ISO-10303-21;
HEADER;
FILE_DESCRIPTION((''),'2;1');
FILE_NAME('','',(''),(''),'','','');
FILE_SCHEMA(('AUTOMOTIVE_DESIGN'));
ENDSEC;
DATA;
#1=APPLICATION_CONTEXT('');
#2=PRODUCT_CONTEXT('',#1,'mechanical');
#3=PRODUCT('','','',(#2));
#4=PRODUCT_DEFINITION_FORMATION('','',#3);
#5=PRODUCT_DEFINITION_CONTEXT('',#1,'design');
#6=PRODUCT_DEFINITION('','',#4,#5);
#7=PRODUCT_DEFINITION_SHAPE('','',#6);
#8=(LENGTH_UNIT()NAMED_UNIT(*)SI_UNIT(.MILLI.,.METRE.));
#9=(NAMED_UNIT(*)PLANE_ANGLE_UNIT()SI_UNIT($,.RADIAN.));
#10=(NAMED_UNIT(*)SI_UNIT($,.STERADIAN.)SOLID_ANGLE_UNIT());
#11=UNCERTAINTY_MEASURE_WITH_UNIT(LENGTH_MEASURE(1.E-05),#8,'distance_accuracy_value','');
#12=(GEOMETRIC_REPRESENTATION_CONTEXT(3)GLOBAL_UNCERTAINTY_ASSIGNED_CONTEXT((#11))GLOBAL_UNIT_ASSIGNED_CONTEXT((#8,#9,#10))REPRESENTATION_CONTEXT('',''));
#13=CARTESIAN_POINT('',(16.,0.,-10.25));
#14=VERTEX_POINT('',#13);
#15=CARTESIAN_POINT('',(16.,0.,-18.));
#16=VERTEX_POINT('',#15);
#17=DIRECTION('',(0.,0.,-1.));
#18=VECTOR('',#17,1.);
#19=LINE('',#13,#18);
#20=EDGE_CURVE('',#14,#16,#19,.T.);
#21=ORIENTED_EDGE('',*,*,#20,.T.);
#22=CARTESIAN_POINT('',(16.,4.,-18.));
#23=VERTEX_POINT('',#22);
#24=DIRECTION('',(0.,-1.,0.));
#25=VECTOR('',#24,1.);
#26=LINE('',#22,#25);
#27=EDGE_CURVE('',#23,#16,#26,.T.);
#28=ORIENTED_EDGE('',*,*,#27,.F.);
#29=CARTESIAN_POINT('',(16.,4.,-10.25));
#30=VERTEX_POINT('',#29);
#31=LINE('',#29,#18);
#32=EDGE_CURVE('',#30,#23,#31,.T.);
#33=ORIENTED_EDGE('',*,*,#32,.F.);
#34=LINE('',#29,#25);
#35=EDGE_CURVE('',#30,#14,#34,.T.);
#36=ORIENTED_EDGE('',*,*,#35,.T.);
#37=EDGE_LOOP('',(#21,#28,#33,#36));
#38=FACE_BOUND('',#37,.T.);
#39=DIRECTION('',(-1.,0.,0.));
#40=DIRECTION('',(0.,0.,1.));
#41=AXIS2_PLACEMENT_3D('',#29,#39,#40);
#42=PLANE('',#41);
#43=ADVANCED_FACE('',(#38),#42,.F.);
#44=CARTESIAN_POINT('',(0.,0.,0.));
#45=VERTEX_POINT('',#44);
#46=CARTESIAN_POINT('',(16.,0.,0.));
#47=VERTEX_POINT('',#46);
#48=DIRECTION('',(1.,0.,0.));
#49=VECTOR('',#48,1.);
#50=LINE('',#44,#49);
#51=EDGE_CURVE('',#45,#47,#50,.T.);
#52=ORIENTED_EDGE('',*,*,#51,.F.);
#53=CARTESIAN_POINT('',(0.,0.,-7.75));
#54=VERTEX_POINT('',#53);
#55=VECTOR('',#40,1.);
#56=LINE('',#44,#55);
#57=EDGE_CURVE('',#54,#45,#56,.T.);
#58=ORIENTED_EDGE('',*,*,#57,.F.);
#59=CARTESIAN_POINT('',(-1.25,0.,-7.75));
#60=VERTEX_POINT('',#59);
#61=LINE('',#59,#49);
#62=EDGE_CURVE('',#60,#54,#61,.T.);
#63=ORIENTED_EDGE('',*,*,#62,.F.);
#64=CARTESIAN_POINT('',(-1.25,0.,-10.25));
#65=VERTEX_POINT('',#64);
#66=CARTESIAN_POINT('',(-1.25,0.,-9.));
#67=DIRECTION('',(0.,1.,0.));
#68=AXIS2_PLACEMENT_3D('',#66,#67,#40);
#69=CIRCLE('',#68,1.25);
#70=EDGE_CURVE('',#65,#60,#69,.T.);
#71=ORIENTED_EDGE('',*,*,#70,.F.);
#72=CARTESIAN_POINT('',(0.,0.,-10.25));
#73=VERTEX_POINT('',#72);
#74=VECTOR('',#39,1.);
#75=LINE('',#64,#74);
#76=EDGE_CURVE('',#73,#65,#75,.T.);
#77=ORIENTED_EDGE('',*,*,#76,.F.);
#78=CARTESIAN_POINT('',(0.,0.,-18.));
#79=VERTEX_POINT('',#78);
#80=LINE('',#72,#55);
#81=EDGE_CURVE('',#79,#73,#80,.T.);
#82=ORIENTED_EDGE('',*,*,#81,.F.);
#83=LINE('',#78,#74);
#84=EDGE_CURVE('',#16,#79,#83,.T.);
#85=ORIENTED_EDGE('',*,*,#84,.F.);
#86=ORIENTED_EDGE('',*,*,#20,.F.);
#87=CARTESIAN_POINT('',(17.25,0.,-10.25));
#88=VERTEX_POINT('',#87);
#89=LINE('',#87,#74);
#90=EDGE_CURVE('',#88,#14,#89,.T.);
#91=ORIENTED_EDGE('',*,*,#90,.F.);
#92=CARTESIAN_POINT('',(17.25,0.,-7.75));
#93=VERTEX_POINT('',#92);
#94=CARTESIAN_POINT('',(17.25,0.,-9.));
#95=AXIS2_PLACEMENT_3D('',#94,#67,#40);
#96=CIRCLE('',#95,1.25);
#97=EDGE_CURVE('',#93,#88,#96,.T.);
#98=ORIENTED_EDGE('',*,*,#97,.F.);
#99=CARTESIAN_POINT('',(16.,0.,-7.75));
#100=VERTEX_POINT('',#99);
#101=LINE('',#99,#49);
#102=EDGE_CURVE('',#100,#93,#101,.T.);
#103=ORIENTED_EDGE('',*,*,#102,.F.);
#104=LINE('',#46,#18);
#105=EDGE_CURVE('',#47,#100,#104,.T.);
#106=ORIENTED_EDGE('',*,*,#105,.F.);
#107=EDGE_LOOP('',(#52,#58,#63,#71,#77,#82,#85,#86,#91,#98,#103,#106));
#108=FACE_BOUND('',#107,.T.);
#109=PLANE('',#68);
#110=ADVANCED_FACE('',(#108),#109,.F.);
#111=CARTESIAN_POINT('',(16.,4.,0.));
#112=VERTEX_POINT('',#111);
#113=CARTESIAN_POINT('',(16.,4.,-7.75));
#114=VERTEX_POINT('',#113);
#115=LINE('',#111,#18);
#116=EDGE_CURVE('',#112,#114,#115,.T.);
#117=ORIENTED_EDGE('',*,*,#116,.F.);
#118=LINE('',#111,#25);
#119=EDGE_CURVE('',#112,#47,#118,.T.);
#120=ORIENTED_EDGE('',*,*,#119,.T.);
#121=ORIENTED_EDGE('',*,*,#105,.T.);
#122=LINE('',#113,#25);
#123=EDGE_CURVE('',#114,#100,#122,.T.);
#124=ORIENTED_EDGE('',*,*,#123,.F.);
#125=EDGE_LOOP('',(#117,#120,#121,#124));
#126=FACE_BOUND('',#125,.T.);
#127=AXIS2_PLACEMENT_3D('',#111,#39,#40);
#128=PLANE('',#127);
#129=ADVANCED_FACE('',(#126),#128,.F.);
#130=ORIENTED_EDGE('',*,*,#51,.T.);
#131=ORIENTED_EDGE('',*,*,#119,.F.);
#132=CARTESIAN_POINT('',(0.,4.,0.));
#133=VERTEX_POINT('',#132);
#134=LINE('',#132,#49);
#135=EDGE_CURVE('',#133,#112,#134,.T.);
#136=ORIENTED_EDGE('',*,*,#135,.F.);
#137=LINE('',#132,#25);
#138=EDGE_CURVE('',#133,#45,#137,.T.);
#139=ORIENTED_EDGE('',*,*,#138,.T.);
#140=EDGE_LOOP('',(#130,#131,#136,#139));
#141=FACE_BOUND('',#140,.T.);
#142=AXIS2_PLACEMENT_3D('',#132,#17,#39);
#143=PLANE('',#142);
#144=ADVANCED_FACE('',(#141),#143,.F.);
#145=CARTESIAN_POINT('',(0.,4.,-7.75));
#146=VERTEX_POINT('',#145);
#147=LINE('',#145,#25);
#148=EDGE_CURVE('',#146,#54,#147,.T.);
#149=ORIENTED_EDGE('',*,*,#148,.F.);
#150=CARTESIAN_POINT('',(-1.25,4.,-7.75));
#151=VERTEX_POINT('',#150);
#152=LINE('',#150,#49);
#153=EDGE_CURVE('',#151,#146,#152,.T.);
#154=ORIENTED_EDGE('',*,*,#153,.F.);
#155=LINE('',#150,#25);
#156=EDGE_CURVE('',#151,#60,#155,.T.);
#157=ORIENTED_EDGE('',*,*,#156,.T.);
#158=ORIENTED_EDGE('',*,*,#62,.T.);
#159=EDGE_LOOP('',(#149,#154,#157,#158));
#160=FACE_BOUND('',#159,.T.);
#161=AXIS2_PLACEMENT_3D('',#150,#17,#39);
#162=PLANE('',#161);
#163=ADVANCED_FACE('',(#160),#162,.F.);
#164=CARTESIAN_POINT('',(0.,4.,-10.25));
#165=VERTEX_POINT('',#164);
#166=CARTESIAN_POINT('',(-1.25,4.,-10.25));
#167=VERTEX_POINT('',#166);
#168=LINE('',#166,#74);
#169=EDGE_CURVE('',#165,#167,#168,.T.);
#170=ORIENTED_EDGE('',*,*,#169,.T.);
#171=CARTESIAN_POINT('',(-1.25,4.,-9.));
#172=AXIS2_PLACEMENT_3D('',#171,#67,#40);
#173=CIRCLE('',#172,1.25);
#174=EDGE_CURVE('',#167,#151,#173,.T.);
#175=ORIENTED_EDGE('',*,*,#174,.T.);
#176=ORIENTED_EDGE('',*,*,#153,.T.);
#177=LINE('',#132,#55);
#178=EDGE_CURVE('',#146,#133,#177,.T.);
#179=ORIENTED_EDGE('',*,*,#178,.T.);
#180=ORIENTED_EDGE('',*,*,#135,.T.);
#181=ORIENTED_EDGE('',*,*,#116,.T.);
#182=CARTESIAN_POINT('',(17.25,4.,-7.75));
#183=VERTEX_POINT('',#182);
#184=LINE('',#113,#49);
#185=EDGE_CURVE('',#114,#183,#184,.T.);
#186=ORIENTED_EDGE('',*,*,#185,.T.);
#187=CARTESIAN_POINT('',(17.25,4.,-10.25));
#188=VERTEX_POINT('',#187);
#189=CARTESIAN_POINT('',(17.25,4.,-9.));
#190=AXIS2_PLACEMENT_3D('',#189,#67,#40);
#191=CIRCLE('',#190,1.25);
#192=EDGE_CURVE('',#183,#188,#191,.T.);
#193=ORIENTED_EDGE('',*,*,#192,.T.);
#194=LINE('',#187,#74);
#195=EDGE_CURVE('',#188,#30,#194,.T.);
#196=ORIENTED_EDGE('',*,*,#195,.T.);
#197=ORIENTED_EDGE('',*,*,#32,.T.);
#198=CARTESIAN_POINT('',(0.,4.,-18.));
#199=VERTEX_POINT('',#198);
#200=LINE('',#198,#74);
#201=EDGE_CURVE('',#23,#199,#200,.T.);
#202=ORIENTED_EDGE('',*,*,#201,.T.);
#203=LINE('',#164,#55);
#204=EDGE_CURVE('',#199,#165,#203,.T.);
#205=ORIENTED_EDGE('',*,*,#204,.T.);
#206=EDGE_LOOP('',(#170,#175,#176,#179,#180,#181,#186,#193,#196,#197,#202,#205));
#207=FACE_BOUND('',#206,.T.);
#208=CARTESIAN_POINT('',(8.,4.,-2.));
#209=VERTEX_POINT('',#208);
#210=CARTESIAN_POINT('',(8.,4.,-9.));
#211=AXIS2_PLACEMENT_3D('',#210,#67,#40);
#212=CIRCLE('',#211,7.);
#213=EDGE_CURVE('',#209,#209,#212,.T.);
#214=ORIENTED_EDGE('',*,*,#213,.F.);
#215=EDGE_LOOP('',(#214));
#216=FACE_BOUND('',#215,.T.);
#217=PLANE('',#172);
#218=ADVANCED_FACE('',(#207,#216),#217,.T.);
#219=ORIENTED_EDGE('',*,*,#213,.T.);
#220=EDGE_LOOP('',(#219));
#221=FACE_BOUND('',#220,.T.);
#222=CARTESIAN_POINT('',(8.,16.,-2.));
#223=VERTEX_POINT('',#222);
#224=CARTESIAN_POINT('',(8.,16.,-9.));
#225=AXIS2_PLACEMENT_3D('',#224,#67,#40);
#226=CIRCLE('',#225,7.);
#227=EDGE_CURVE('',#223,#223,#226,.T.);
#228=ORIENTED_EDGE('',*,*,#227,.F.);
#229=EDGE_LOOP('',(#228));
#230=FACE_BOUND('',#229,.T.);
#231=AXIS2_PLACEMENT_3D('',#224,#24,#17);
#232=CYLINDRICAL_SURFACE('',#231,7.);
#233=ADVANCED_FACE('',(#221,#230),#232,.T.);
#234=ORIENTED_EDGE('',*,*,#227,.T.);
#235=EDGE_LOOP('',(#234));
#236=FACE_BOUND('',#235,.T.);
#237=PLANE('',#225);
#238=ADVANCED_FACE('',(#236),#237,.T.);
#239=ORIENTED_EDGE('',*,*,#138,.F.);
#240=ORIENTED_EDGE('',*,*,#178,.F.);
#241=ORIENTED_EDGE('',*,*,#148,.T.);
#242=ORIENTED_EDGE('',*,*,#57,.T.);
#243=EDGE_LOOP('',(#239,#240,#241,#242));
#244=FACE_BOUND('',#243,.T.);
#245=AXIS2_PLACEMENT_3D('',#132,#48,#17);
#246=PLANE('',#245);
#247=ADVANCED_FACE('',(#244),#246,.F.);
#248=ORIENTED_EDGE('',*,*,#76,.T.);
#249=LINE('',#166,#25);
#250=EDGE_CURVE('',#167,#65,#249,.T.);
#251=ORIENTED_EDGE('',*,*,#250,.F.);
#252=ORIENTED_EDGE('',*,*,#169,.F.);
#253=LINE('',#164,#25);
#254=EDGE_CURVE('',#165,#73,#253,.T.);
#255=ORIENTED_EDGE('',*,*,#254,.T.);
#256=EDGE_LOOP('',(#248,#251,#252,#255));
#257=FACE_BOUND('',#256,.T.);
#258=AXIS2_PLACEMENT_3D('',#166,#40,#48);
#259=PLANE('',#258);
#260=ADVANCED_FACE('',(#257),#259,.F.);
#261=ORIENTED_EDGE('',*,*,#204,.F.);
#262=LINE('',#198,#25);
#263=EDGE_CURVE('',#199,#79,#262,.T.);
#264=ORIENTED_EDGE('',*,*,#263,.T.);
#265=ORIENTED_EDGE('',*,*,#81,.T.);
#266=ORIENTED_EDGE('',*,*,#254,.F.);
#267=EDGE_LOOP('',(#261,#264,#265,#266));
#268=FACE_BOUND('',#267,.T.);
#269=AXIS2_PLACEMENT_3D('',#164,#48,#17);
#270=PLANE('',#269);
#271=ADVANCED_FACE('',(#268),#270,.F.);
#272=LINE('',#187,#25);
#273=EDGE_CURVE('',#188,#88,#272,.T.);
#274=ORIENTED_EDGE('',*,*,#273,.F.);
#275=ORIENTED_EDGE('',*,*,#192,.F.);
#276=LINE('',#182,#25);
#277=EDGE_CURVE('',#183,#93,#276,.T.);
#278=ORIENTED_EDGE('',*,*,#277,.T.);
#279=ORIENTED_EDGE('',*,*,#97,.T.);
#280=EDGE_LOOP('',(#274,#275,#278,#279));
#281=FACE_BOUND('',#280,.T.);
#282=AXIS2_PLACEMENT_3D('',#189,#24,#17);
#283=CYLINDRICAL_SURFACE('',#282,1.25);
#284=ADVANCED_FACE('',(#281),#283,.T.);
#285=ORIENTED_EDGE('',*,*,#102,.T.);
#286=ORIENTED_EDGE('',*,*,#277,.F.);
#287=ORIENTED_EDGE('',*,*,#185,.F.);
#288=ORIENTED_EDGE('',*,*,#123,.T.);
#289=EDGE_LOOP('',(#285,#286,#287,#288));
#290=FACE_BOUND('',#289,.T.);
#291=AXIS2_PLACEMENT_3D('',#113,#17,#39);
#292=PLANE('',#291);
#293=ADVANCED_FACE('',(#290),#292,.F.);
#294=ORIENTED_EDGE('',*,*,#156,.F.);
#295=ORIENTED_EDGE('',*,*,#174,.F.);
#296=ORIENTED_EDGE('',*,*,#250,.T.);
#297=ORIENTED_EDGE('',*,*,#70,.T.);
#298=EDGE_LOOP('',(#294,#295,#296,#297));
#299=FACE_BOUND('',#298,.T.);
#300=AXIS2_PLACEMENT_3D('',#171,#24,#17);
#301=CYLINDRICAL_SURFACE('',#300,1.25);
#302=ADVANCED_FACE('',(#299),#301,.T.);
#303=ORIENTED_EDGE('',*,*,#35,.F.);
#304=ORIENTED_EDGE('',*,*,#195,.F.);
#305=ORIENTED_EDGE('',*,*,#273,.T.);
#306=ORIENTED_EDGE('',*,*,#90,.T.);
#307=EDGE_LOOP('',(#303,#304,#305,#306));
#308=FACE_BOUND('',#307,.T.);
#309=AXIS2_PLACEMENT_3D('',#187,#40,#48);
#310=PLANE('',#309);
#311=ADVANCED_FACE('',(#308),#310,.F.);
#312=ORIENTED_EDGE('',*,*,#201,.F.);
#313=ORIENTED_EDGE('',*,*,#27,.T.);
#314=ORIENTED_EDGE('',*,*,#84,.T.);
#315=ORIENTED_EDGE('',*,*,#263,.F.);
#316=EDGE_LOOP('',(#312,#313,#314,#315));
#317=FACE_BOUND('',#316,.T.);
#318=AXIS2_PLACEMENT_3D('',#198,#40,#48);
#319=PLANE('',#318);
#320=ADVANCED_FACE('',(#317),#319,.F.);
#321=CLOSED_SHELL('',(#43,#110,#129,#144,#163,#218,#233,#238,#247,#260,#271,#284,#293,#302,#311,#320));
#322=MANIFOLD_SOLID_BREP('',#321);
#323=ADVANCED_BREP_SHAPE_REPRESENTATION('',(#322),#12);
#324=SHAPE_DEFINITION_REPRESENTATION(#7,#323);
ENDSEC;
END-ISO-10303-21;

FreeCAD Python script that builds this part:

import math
import FreeCAD as App
import Part
import Sketcher
Q = App.Units.Quantity

doc = App.newDocument("Part")
body = doc.addObject("PartDesign::Body", "Body")

sketch1 = body.newObject("Sketcher::SketchObject", "Sketch")
sketch1.AttachmentSupport = (doc.getObject("XZ_Plane"), [""])
sketch1.MapMode = "FlatFace"
sketch1.addGeometry(Part.LineSegment(App.Vector(0, 0, 0), App.Vector(16, 0, 0)), False)
sketch1.addGeometry(Part.LineSegment(App.Vector(16, 0, 0), App.Vector(16, -7.8, 0)), False)
sketch1.addGeometry(Part.LineSegment(App.Vector(16, -7.8, 0), App.Vector(17.2, -7.8, 0)), False)
sketch1.addGeometry(Part.ArcOfCircle(Part.Circle(App.Vector(17.2, -9, 0), App.Vector(0, 0, 1), 1.2), math.radians(-90), math.radians(90)), False)
sketch1.addGeometry(Part.LineSegment(App.Vector(17.2, -10.2, 0), App.Vector(16, -10.2, 0)), False)
sketch1.addGeometry(Part.LineSegment(App.Vector(16, -10.2, 0), App.Vector(16, -18, 0)), False)
sketch1.addGeometry(Part.LineSegment(App.Vector(16, -18, 0), App.Vector(0, -18, 0)), False)
sketch1.addGeometry(Part.LineSegment(App.Vector(0, -18, 0), App.Vector(0, -10.2, 0)), False)
sketch1.addGeometry(Part.LineSegment(App.Vector(0, -10.2, 0), App.Vector(-1.2, -10.2, 0)), False)
sketch1.addGeometry(Part.ArcOfCircle(Part.Circle(App.Vector(-1.2, -9, 0), App.Vector(0, 0, 1), 1.2), math.radians(90), math.radians(270)), False)
sketch1.addGeometry(Part.LineSegment(App.Vector(-1.2, -7.8, 0), App.Vector(0, -7.8, 0)), False)
sketch1.addGeometry(Part.LineSegment(App.Vector(0, -7.8, 0), App.Vector(0, 0, 0)), False)
sketch1.addConstraint(Sketcher.Constraint("Coincident", 0, 2, 1, 1))
sketch1.addConstraint(Sketcher.Constraint("Coincident", 1, 2, 2, 1))
sketch1.addConstraint(Sketcher.Constraint("Tangent", 2, 2, 3, 2))
sketch1.addConstraint(Sketcher.Constraint("Tangent", 3, 1, 4, 1))
sketch1.addConstraint(Sketcher.Constraint("Coincident", 4, 2, 5, 1))
sketch1.addConstraint(Sketcher.Constraint("Coincident", 5, 2, 6, 1))
sketch1.addConstraint(Sketcher.Constraint("Coincident", 6, 2, 7, 1))
sketch1.addConstraint(Sketcher.Constraint("Coincident", 7, 2, 8, 1))
sketch1.addConstraint(Sketcher.Constraint("Tangent", 8, 2, 9, 2))
sketch1.addConstraint(Sketcher.Constraint("Tangent", 9, 1, 10, 1))
sketch1.addConstraint(Sketcher.Constraint("Coincident", 10, 2, 11, 1))
sketch1.addConstraint(Sketcher.Constraint("Coincident", 11, 2, 0, 1))
sketch1.addConstraint(Sketcher.Constraint("Horizontal", 0))
sketch1.addConstraint(Sketcher.Constraint("Vertical", 1))
sketch1.addConstraint(Sketcher.Constraint("Horizontal", 2))
sketch1.addConstraint(Sketcher.Constraint("Horizontal", 4))
sketch1.addConstraint(Sketcher.Constraint("Vertical", 5))
sketch1.addConstraint(Sketcher.Constraint("Horizontal", 6))
sketch1.addConstraint(Sketcher.Constraint("Vertical", 7))
sketch1.addConstraint(Sketcher.Constraint("Horizontal", 8))
sketch1.addConstraint(Sketcher.Constraint("Horizontal", 10))
sketch1.addConstraint(Sketcher.Constraint("Vertical", 11))
sketch1.addConstraint(Sketcher.Constraint("Coincident", 11, 2, -1, 1))
sketch1.addConstraint(Sketcher.Constraint("Equal", 3, 9))
sketch1.addConstraint(Sketcher.Constraint("PointOnObject", 6, 2, -2))
sketch1.addConstraint(Sketcher.Constraint("Horizontal", 3, 3, 9, 3))
sketch1.addConstraint(Sketcher.Constraint("Vertical", 1, 2, 4, 2))
sketch1.addConstraint(Sketcher.Constraint("Equal", 4, 8))
sketch1.addConstraint(Sketcher.Constraint("Equal", 1, 5))
sketch1.addConstraint(Sketcher.Constraint("DistanceX", 0, 1, 0, 2, Q("16 mm")))
sketch1.addConstraint(Sketcher.Constraint("Radius", 3, Q("1.25 mm")))
sketch1.addConstraint(Sketcher.Constraint("DistanceY", 3, 3, -1, 1, Q("9 mm")))
sketch1.addConstraint(Sketcher.Constraint("DistanceX", 2, 1, 2, 2, Q("1.25 mm")))
pad1 = body.newObject("PartDesign::Pad", "Pad")
pad1.Profile = sketch1
pad1.Length = 4
pad1.Reversed = True

sketch2 = body.newObject("Sketcher::SketchObject", "Sketch001")
sketch2.AttachmentSupport = (doc.getObject("XZ_Plane"), [""])
sketch2.MapMode = "FlatFace"
sketch2.AttachmentOffset = App.Placement(App.Vector(0, 0, -4), App.Rotation())
sketch2.addGeometry(Part.Circle(App.Vector(8, -9, 0), App.Vector(0, 0, 1), 7), False)
sketch2.addConstraint(Sketcher.Constraint("Diameter", 0, Q("14 mm")))
sketch2.addConstraint(Sketcher.Constraint("DistanceX", -1, 1, 0, 3, Q("8 mm")))
sketch2.addConstraint(Sketcher.Constraint("DistanceY", 0, 3, -1, 1, Q("9 mm")))
pad2 = body.newObject("PartDesign::Pad", "Pad001")
pad2.Profile = sketch2
pad2.Length = 12
pad2.Reversed = True

doc.recompute()
